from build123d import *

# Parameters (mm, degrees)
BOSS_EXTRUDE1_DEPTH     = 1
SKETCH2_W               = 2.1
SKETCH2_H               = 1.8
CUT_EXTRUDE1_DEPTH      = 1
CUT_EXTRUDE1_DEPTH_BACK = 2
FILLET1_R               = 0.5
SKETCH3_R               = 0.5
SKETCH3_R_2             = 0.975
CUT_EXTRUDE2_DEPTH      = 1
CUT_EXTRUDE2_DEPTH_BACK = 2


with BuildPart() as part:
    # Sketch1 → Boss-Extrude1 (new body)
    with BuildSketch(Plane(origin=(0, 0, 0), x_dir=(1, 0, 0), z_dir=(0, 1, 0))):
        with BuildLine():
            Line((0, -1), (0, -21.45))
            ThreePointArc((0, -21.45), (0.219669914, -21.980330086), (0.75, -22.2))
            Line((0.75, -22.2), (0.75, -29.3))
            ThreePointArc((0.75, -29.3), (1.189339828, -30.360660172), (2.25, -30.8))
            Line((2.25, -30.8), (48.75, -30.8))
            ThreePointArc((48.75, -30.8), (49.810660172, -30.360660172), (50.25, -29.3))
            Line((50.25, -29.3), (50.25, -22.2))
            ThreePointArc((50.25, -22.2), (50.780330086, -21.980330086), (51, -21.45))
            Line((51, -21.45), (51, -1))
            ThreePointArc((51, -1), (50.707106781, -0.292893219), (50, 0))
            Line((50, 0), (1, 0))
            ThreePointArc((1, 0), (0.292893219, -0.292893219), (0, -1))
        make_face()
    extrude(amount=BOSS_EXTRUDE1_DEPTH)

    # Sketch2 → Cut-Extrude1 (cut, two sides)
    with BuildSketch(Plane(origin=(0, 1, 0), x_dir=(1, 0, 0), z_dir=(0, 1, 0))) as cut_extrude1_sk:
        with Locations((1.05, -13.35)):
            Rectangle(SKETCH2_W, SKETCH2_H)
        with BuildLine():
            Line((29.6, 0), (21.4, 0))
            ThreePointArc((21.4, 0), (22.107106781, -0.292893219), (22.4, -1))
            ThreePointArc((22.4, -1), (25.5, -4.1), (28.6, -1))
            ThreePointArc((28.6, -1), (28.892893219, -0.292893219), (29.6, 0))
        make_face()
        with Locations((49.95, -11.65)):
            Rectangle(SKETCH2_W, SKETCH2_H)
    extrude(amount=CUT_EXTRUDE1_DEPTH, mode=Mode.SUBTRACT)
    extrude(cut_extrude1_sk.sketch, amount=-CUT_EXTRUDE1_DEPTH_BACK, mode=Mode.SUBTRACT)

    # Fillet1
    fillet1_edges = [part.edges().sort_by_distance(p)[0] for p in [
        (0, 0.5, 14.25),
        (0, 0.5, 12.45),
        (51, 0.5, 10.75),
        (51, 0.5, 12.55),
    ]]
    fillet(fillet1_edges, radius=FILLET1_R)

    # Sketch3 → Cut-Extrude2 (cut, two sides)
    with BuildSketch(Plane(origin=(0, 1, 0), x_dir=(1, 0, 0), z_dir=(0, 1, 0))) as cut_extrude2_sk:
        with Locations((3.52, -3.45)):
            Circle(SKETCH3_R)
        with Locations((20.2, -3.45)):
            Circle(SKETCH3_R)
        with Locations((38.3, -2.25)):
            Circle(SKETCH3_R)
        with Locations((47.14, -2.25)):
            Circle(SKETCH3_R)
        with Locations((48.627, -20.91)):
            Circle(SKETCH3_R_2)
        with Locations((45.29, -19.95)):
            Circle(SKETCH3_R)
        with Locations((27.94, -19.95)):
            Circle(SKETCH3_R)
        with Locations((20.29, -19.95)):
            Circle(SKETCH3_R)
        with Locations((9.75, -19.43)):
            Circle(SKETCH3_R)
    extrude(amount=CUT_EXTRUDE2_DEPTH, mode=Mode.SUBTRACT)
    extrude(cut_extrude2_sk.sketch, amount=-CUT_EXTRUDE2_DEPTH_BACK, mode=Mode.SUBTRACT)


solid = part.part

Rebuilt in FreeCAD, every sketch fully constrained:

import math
import FreeCAD as App
import Part
import Sketcher
Q = App.Units.Quantity


def edges_at(feature, points):
    """Names of the edges that pass closest to the given points."""
    edges = feature.Shape.Edges
    near = lambda p: min(range(len(edges)), key=lambda i: edges[i].distToShape(Part.Vertex(*p))[0])
    return sorted({f"Edge{near(p) + 1}" for p in points})

doc = App.newDocument("Part")
params = doc.addObject("Spreadsheet::Sheet", "Params")
for row, (alias, value) in enumerate([
    ("sketch1_radius", "1 mm"),
    ("sketch1_radius2", "1.5 mm"),
    ("sketch1_width", "49 mm"),
    ("sketch1_radius3", "0.75 mm"),
    ("sketch1_width2", "46.5 mm"),
    ("pad1_length", "1 mm"),
    ("sketch2_radius", "1 mm"),
    ("sketch2_radius2", "3.1 mm"),
    ("sketch2_width", "2.1 mm"),
    ("sketch2_height", "1.8 mm"),
    ("fillet_radius", "0.5 mm"),
    ("sketch3_diameter", "1 mm"),
    ("sketch3_diameter2", "1.95 mm"),
], start=1):
    params.set(f"A{row}", alias)
    params.set(f"B{row}", "=" + value)
    params.setAlias(f"B{row}", alias)

body = doc.addObject("PartDesign::Body", "Body")

# Sketch on XZ plane
sketch1 = doc.addObject("Sketcher::SketchObject", "Sketch")
body.addObject(sketch1)
sketch1.AttachmentSupport = (doc.XZ_Plane, [""])
sketch1.MapMode = "FlatFace"
sketch1.addGeometry([
    Part.LineSegment(App.Vector(0, 1, 0), App.Vector(0, 21.4, 0)),  # 0
    Part.ArcOfCircle(Part.Circle(App.Vector(0.8, 21.4, 0), App.Vector(0, 0, 1), 0.8), math.radians(90), math.radians(180)),  # 1
    Part.LineSegment(App.Vector(0.8, 22.2, 0), App.Vector(0.8, 29.3, 0)),  # 2
    Part.ArcOfCircle(Part.Circle(App.Vector(2.2, 29.3, 0), App.Vector(0, 0, 1), 1.5), math.radians(90), math.radians(180)),  # 3
    Part.LineSegment(App.Vector(2.2, 30.8, 0), App.Vector(48.8, 30.8, 0)),  # 4
    Part.ArcOfCircle(Part.Circle(App.Vector(48.8, 29.3, 0), App.Vector(0, 0, 1), 1.5), math.radians(0), math.radians(90)),  # 5
    Part.LineSegment(App.Vector(50.2, 29.3, 0), App.Vector(50.2, 22.2, 0)),  # 6
    Part.ArcOfCircle(Part.Circle(App.Vector(50.2, 21.4, 0), App.Vector(0, 0, 1), 0.8), math.radians(0), math.radians(90)),  # 7
    Part.LineSegment(App.Vector(51, 21.4, 0), App.Vector(51, 1, 0)),  # 8
    Part.ArcOfCircle(Part.Circle(App.Vector(50, 1, 0), App.Vector(0, 0, 1), 1), math.radians(-90), math.radians(0)),  # 9
    Part.LineSegment(App.Vector(50, 0, 0), App.Vector(1, 0, 0)),  # 10
    Part.ArcOfCircle(Part.Circle(App.Vector(1, 1, 0), App.Vector(0, 0, 1), 1), math.radians(-180), math.radians(-90)),  # 11
], False)
sketch1.addConstraint([
    Sketcher.Constraint("Tangent", 0, 2, 1, 2),
    Sketcher.Constraint("Coincident", 1, 1, 2, 1),
    Sketcher.Constraint("Tangent", 2, 2, 3, 2),
    Sketcher.Constraint("Tangent", 3, 1, 4, 1),
    Sketcher.Constraint("Tangent", 4, 2, 5, 2),
    Sketcher.Constraint("Tangent", 5, 1, 6, 1),
    Sketcher.Constraint("Coincident", 6, 2, 7, 2),
    Sketcher.Constraint("Tangent", 7, 1, 8, 1),
    Sketcher.Constraint("Tangent", 8, 2, 9, 2),
    Sketcher.Constraint("Tangent", 9, 1, 10, 1),
    Sketcher.Constraint("Tangent", 10, 2, 11, 2),
    Sketcher.Constraint("Tangent", 11, 1, 0, 1),
    Sketcher.Constraint("Vertical", 0),
    Sketcher.Constraint("Vertical", 2),
    Sketcher.Constraint("Horizontal", 4),
    Sketcher.Constraint("Vertical", 6),
    Sketcher.Constraint("Vertical", 8),
    Sketcher.Constraint("Horizontal", 10),
    Sketcher.Constraint("Equal", 3, 5),
    Sketcher.Constraint("Equal", 1, 7),
    Sketcher.Constraint("Equal", 9, 11),
    Sketcher.Constraint("PointOnObject", 0, 2, -2),
    Sketcher.Constraint("PointOnObject", 9, 1, -1),
    Sketcher.Constraint("Horizontal", 1, 3, 7, 3),
    Sketcher.Constraint("Vertical", 7, 3, 5, 1),
    Sketcher.Constraint("Radius", 9, Q("1 mm")),
    Sketcher.Constraint("Radius", 3, Q("1.5 mm")),
    Sketcher.Constraint("DistanceX", 10, 2, 10, 1, Q("49 mm")),
    Sketcher.Constraint("Radius", 1, Q("0.75 mm")),
    Sketcher.Constraint("DistanceX", 4, 1, 4, 2, Q("46.5 mm")),
    Sketcher.Constraint("DistanceY", 2, 1, 2, 2, Q("7.1 mm")),
    Sketcher.Constraint("DistanceY", 0, 1, 0, 2, Q("20.45 mm")),
])
sketch1.setExpression("Constraints[25]", "Params.sketch1_radius")
sketch1.setExpression("Constraints[26]", "Params.sketch1_radius2")
sketch1.setExpression("Constraints[27]", "Params.sketch1_width")
sketch1.setExpression("Constraints[28]", "Params.sketch1_radius3")
sketch1.setExpression("Constraints[29]", "Params.sketch1_width2")
pad1 = doc.addObject("PartDesign::Pad", "Pad")
body.addObject(pad1)
pad1.Profile = sketch1
pad1.setExpression("Length", "Params.pad1_length")
pad1.Reversed = True

# Sketch on XZ plane
sketch2 = doc.addObject("Sketcher::SketchObject", "Sketch001")
body.addObject(sketch2)
sketch2.AttachmentSupport = (doc.XZ_Plane, [""])
sketch2.MapMode = "FlatFace"
sketch2.AttachmentOffset = App.Placement(App.Vector(0, 0, -1), App.Rotation())
sketch2.addGeometry([
    Part.LineSegment(App.Vector(0, 12.4, 0), App.Vector(0, 14.2, 0)),  # 0
    Part.LineSegment(App.Vector(0, 14.2, 0), App.Vector(2.1, 14.2, 0)),  # 1
    Part.LineSegment(App.Vector(2.1, 14.2, 0), App.Vector(2.1, 12.4, 0)),  # 2
    Part.LineSegment(App.Vector(2.1, 12.4, 0), App.Vector(0, 12.4, 0)),  # 3
    Part.LineSegment(App.Vector(29.6, 0, 0), App.Vector(21.4, 0, 0)),  # 4
    Part.ArcOfCircle(Part.Circle(App.Vector(21.4, 1, 0), App.Vector(0, 0, 1), 1), math.radians(-90), math.radians(0)),  # 5
    Part.ArcOfCircle(Part.Circle(App.Vector(25.5, 1, 0), App.Vector(0, 0, 1), 3.1), math.radians(0), math.radians(180)),  # 6
    Part.ArcOfCircle(Part.Circle(App.Vector(29.6, 1, 0), App.Vector(0, 0, 1), 1), math.radians(-180), math.radians(-90)),  # 7
    Part.LineSegment(App.Vector(48.9, 10.8, 0), App.Vector(48.9, 12.6, 0)),  # 8
    Part.LineSegment(App.Vector(48.9, 12.6, 0), App.Vector(51, 12.6, 0)),  # 9
    Part.LineSegment(App.Vector(51, 12.6, 0), App.Vector(51, 10.8, 0)),  # 10
    Part.LineSegment(App.Vector(51, 10.8, 0), App.Vector(48.9, 10.8, 0)),  # 11
], False)
sketch2.addConstraint([
    Sketcher.Constraint("Coincident", 0, 2, 1, 1),
    Sketcher.Constraint("Coincident", 1, 2, 2, 1),
    Sketcher.Constraint("Coincident", 2, 2, 3, 1),
    Sketcher.Constraint("Coincident", 3, 2, 0, 1),
    Sketcher.Constraint("Tangent", 4, 2, 5, 1),
    Sketcher.Constraint("Tangent", 5, 2, 6, 2),
    Sketcher.Constraint("Tangent", 6, 1, 7, 1),
    Sketcher.Constraint("Tangent", 7, 2, 4, 1),
    Sketcher.Constraint("Coincident", 8, 2, 9, 1),
    Sketcher.Constraint("Coincident", 9, 2, 10, 1),
    Sketcher.Constraint("Coincident", 10, 2, 11, 1),
    Sketcher.Constraint("Coincident", 11, 2, 8, 1),
    Sketcher.Constraint("Vertical", 0),
    Sketcher.Constraint("Horizontal", 1),
    Sketcher.Constraint("Vertical", 2),
    Sketcher.Constraint("Horizontal", 3),
    Sketcher.Constraint("Horizontal", 4),
    Sketcher.Constraint("Vertical", 8),
    Sketcher.Constraint("Horizontal", 9),
    Sketcher.Constraint("Vertical", 10),
    Sketcher.Constraint("Horizontal", 11),
    Sketcher.Constraint("Equal", 5, 7),
    Sketcher.Constraint("PointOnObject", 0, 2, -2),
    Sketcher.Constraint("PointOnObject", 4, 2, -1),
    Sketcher.Constraint("Horizontal", 5, 3, 6, 3),
    Sketcher.Constraint("Equal", 3, 9),
    Sketcher.Constraint("Equal", 2, 8),
    Sketcher.Constraint("Radius", 5, Q("1 mm")),
    Sketcher.Constraint("Radius", 6, Q("3.1 mm")),
    Sketcher.Constraint("DistanceX", 1, 1, 1, 2, Q("2.1 mm")),
    Sketcher.Constraint("DistanceY", 0, 1, 0, 2, Q("1.8 mm")),
    Sketcher.Constraint("DistanceX", -1, 1, 9, 2, Q("51 mm")),
    Sketcher.Constraint("DistanceX", -1, 1, 5, 3, Q("21.4 mm")),
    Sketcher.Constraint("DistanceY", -1, 1, 0, 2, Q("14.25 mm")),
    Sketcher.Constraint("DistanceY", -1, 1, 8, 2, Q("12.55 mm")),
])
sketch2.setExpression("Constraints[27]", "Params.sketch2_radius")
sketch2.setExpression("Constraints[28]", "Params.sketch2_radius2")
sketch2.setExpression("Constraints[29]", "Params.sketch2_width")
sketch2.setExpression("Constraints[30]", "Params.sketch2_height")
pocket1 = doc.addObject("PartDesign::Pocket", "Pocket")
body.addObject(pocket1)
pocket1.Profile = sketch2
pocket1.Type = "ThroughAll"
pocket1.Midplane = True
doc.recompute()

fillet = doc.addObject("PartDesign::Fillet", "Fillet")
body.addObject(fillet)
fillet.Base = (pocket1, edges_at(pocket1, [
    (0, 0.5, 14.25),
    (0, 0.5, 12.45),
    (51, 0.5, 10.75),
    (51, 0.5, 12.55),
]))
fillet.setExpression("Radius", "Params.fillet_radius")

# Sketch on XZ plane
sketch3 = doc.addObject("Sketcher::SketchObject", "Sketch002")
body.addObject(sketch3)
sketch3.AttachmentSupport = (doc.XZ_Plane, [""])
sketch3.MapMode = "FlatFace"
sketch3.AttachmentOffset = App.Placement(App.Vector(0, 0, -1), App.Rotation())
sketch3.addGeometry([
    Part.Circle(App.Vector(3.5, 3.5, 0), App.Vector(0, 0, 1), 0.5),  # 0
    Part.Circle(App.Vector(20.2, 3.5, 0), App.Vector(0, 0, 1), 0.5),  # 1
    Part.Circle(App.Vector(38.3, 2.2, 0), App.Vector(0, 0, 1), 0.5),  # 2
    Part.Circle(App.Vector(47.1, 2.2, 0), App.Vector(0, 0, 1), 0.5),  # 3
    Part.Circle(App.Vector(48.6, 20.9, 0), App.Vector(0, 0, 1), 1),  # 4
    Part.Circle(App.Vector(45.3, 19.9, 0), App.Vector(0, 0, 1), 0.5),  # 5
    Part.Circle(App.Vector(27.9, 19.9, 0), App.Vector(0, 0, 1), 0.5),  # 6
    Part.Circle(App.Vector(20.3, 19.9, 0), App.Vector(0, 0, 1), 0.5),  # 7
    Part.Circle(App.Vector(9.8, 19.4, 0), App.Vector(0, 0, 1), 0.5),  # 8
], False)
sketch3.addConstraint([
    Sketcher.Constraint("Equal", 0, 1),
    Sketcher.Constraint("Equal", 1, 2),
    Sketcher.Constraint("Equal", 2, 3),
    Sketcher.Constraint("Equal", 3, 5),
    Sketcher.Constraint("Equal", 5, 6),
    Sketcher.Constraint("Equal", 6, 7),
    Sketcher.Constraint("Equal", 7, 8),
    Sketcher.Constraint("Horizontal", 0, 3, 1, 3),
    Sketcher.Constraint("Horizontal", 2, 3, 3, 3),
    Sketcher.Constraint("Horizontal", 5, 3, 6, 3),
    Sketcher.Constraint("Horizontal", 6, 3, 7, 3),
    Sketcher.Constraint("Diameter", 0, Q("1 mm")),
    Sketcher.Constraint("Diameter", 4, Q("1.95 mm")),
    Sketcher.Constraint("DistanceX", 7, 3, 5, 3, Q("25 mm")),
    Sketcher.Constraint("DistanceX", -1, 1, 1, 3, Q("20.2 mm")),
    Sketcher.Constraint("DistanceX", -1, 1, 2, 3, Q("38.3 mm")),
    Sketcher.Constraint("DistanceY", 2, 3, 1, 3, Q("1.2 mm")),
    Sketcher.Constraint("DistanceY", 3, 3, 5, 3, Q("17.7 mm")),
    Sketcher.Constraint("DistanceX", 6, 3, 3, 3, Q("19.2 mm")),
    Sketcher.Constraint("DistanceX", -1, 1, 0, 3, Q("3.52 mm")),
    Sketcher.Constraint("DistanceY", -1, 1, 0, 3, Q("3.45 mm")),
    Sketcher.Constraint("DistanceX", -1, 1, 3, 3, Q("47.14 mm")),
    Sketcher.Constraint("DistanceY", -1, 1, 4, 3, Q("20.91 mm")),
    Sketcher.Constraint("DistanceX", -1, 1, 5, 3, Q("45.29 mm")),
    Sketcher.Constraint("DistanceX", -1, 1, 8, 3, Q("9.75 mm")),
    Sketcher.Constraint("DistanceY", -1, 1, 8, 3, Q("19.43 mm")),
    Sketcher.Constraint("DistanceX", -1, 1, 4, 3, Q("48.627 mm")),
])
sketch3.setExpression("Constraints[11]", "Params.sketch3_diameter")
sketch3.setExpression("Constraints[12]", "Params.sketch3_diameter2")
pocket2 = doc.addObject("PartDesign::Pocket", "Pocket001")
body.addObject(pocket2)
pocket2.Profile = sketch3
pocket2.Type = "ThroughAll"
pocket2.Midplane = True

doc.recompute()
